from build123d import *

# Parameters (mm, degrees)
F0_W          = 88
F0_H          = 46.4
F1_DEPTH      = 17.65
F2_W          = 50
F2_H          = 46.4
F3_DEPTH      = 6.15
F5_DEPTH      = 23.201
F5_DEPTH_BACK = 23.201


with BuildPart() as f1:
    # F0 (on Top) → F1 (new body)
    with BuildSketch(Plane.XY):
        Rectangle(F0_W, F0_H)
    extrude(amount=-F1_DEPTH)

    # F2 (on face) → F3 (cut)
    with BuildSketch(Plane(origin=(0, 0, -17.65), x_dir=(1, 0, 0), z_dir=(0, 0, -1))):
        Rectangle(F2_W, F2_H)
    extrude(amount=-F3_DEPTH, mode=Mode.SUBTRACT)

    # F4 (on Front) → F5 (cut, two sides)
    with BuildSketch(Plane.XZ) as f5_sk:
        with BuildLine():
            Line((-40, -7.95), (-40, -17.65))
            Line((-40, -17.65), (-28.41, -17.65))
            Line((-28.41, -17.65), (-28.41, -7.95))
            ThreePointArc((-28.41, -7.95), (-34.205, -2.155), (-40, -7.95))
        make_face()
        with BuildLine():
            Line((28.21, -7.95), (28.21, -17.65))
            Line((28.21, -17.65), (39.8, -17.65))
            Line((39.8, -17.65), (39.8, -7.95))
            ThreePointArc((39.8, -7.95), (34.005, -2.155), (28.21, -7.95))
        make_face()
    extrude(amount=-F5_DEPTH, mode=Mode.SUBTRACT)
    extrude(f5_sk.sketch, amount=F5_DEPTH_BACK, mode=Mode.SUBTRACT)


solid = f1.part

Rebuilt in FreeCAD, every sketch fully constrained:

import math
import FreeCAD as App
import Part
import Sketcher

V = App.Vector


def add_polygon(sketch, points):
    """Adds a closed chain of lines whose ends are joined by coincident constraints."""
    first, n = sketch.GeometryCount, len(points)
    for a, b in zip(points, points[1:] + points[:1]):
        sketch.addGeometry(Part.LineSegment(App.Vector(*a, 0), App.Vector(*b, 0)), False)
    for i in range(n):
        sketch.addConstraint(Sketcher.Constraint("Coincident", first + i, 2, first + (i + 1) % n, 1))

doc = App.newDocument("Part")
body = doc.addObject("PartDesign::Body", "Body")

sketch1 = body.newObject("Sketcher::SketchObject", "Sketch")
sketch1.AttachmentSupport = (doc.getObject("XY_Plane"), [""])
sketch1.MapMode = "FlatFace"
add_polygon(sketch1, [(-44, 23), (-44, -23), (44, -23), (44, 23)])
sketch1.addConstraint([
    Sketcher.Constraint("Vertical", 0),
    Sketcher.Constraint("Horizontal", 1),
    Sketcher.Constraint("Vertical", 2),
    Sketcher.Constraint("Horizontal", 3),
    Sketcher.Constraint("Symmetric", 0, 2, 2, 2, -1, 1),
    Sketcher.Constraint("DistanceX", 1, 1, 1, 2, 88.0),
    Sketcher.Constraint("DistanceY", 0, 2, 0, 1, 46.4),
])
pad1 = body.newObject("PartDesign::Pad", "Pad")
pad1.Profile = sketch1
pad1.Length = 17.65
pad1.Reversed = True

sketch2 = body.newObject("Sketcher::SketchObject", "Sketch001")
sketch2.AttachmentSupport = (doc.getObject("XY_Plane"), [""])
sketch2.MapMode = "FlatFace"
sketch2.AttachmentOffset = App.Placement(V(0, 0, -17.65), App.Rotation())
add_polygon(sketch2, [(-25, -23), (-25, 23), (25, 23), (25, -23)])
sketch2.addConstraint([
    Sketcher.Constraint("Vertical", 0),
    Sketcher.Constraint("Horizontal", 1),
    Sketcher.Constraint("Vertical", 2),
    Sketcher.Constraint("Horizontal", 3),
    Sketcher.Constraint("Symmetric", 0, 2, 2, 2, -1, 1),
    Sketcher.Constraint("DistanceX", 1, 1, 1, 2, 50.0),
    Sketcher.Constraint("DistanceY", 0, 1, 0, 2, 46.4),
])
pocket1 = body.newObject("PartDesign::Pocket", "Pocket")
pocket1.Profile = sketch2
pocket1.Length = 6.15
pocket1.Reversed = True

sketch3 = body.newObject("Sketcher::SketchObject", "Sketch002")
sketch3.AttachmentSupport = (doc.getObject("XZ_Plane"), [""])
sketch3.MapMode = "FlatFace"
sketch3.addGeometry([
    Part.LineSegment(V(-40, -8, 0), V(-40, -18, 0)),
    Part.LineSegment(V(-40, -18, 0), V(-28, -18, 0)),
    Part.LineSegment(V(-28, -18, 0), V(-28, -8, 0)),
    Part.ArcOfCircle(Part.Circle(V(-34, -8, 0), V(0, 0, 1), 6), math.radians(0), math.radians(180)),
    Part.LineSegment(V(28, -8, 0), V(28, -18, 0)),
    Part.LineSegment(V(28, -18, 0), V(40, -18, 0)),
    Part.LineSegment(V(40, -18, 0), V(40, -8, 0)),
    Part.ArcOfCircle(Part.Circle(V(34, -8, 0), V(0, 0, 1), 6), math.radians(0), math.radians(180)),
], False)
sketch3.addConstraint([
    Sketcher.Constraint("Coincident", 0, 2, 1, 1),
    Sketcher.Constraint("Coincident", 1, 2, 2, 1),
    Sketcher.Constraint("Tangent", 2, 2, 3, 1),
    Sketcher.Constraint("Tangent", 3, 2, 0, 1),
    Sketcher.Constraint("Coincident", 4, 2, 5, 1),
    Sketcher.Constraint("Coincident", 5, 2, 6, 1),
    Sketcher.Constraint("Tangent", 6, 2, 7, 1),
    Sketcher.Constraint("Tangent", 7, 2, 4, 1),
    Sketcher.Constraint("Vertical", 0),
    Sketcher.Constraint("Horizontal", 1),
    Sketcher.Constraint("Vertical", 2),
    Sketcher.Constraint("Vertical", 4),
    Sketcher.Constraint("Horizontal", 5),
    Sketcher.Constraint("Vertical", 6),
    Sketcher.Constraint("Equal", 3, 7),
    Sketcher.Constraint("Horizontal", 3, 3, 7, 3),
    Sketcher.Constraint("Horizontal", 1, 2, 4, 2),
    Sketcher.Constraint("DistanceY", 0, 2, 0, 1, 9.7),
    Sketcher.Constraint("DistanceX", 0, 2, -1, 1, 40.0),
    Sketcher.Constraint("Radius", 3, 5.795),
    Sketcher.Constraint("DistanceX", -1, 1, 5, 2, 39.8),
    Sketcher.Constraint("DistanceY", 3, 3, -1, 1, 7.95),
])
pocket2 = body.newObject("PartDesign::Pocket", "Pocket001")
pocket2.Profile = sketch3
pocket2.Type = "ThroughAll"
pocket2.Midplane = True

doc.recompute()
